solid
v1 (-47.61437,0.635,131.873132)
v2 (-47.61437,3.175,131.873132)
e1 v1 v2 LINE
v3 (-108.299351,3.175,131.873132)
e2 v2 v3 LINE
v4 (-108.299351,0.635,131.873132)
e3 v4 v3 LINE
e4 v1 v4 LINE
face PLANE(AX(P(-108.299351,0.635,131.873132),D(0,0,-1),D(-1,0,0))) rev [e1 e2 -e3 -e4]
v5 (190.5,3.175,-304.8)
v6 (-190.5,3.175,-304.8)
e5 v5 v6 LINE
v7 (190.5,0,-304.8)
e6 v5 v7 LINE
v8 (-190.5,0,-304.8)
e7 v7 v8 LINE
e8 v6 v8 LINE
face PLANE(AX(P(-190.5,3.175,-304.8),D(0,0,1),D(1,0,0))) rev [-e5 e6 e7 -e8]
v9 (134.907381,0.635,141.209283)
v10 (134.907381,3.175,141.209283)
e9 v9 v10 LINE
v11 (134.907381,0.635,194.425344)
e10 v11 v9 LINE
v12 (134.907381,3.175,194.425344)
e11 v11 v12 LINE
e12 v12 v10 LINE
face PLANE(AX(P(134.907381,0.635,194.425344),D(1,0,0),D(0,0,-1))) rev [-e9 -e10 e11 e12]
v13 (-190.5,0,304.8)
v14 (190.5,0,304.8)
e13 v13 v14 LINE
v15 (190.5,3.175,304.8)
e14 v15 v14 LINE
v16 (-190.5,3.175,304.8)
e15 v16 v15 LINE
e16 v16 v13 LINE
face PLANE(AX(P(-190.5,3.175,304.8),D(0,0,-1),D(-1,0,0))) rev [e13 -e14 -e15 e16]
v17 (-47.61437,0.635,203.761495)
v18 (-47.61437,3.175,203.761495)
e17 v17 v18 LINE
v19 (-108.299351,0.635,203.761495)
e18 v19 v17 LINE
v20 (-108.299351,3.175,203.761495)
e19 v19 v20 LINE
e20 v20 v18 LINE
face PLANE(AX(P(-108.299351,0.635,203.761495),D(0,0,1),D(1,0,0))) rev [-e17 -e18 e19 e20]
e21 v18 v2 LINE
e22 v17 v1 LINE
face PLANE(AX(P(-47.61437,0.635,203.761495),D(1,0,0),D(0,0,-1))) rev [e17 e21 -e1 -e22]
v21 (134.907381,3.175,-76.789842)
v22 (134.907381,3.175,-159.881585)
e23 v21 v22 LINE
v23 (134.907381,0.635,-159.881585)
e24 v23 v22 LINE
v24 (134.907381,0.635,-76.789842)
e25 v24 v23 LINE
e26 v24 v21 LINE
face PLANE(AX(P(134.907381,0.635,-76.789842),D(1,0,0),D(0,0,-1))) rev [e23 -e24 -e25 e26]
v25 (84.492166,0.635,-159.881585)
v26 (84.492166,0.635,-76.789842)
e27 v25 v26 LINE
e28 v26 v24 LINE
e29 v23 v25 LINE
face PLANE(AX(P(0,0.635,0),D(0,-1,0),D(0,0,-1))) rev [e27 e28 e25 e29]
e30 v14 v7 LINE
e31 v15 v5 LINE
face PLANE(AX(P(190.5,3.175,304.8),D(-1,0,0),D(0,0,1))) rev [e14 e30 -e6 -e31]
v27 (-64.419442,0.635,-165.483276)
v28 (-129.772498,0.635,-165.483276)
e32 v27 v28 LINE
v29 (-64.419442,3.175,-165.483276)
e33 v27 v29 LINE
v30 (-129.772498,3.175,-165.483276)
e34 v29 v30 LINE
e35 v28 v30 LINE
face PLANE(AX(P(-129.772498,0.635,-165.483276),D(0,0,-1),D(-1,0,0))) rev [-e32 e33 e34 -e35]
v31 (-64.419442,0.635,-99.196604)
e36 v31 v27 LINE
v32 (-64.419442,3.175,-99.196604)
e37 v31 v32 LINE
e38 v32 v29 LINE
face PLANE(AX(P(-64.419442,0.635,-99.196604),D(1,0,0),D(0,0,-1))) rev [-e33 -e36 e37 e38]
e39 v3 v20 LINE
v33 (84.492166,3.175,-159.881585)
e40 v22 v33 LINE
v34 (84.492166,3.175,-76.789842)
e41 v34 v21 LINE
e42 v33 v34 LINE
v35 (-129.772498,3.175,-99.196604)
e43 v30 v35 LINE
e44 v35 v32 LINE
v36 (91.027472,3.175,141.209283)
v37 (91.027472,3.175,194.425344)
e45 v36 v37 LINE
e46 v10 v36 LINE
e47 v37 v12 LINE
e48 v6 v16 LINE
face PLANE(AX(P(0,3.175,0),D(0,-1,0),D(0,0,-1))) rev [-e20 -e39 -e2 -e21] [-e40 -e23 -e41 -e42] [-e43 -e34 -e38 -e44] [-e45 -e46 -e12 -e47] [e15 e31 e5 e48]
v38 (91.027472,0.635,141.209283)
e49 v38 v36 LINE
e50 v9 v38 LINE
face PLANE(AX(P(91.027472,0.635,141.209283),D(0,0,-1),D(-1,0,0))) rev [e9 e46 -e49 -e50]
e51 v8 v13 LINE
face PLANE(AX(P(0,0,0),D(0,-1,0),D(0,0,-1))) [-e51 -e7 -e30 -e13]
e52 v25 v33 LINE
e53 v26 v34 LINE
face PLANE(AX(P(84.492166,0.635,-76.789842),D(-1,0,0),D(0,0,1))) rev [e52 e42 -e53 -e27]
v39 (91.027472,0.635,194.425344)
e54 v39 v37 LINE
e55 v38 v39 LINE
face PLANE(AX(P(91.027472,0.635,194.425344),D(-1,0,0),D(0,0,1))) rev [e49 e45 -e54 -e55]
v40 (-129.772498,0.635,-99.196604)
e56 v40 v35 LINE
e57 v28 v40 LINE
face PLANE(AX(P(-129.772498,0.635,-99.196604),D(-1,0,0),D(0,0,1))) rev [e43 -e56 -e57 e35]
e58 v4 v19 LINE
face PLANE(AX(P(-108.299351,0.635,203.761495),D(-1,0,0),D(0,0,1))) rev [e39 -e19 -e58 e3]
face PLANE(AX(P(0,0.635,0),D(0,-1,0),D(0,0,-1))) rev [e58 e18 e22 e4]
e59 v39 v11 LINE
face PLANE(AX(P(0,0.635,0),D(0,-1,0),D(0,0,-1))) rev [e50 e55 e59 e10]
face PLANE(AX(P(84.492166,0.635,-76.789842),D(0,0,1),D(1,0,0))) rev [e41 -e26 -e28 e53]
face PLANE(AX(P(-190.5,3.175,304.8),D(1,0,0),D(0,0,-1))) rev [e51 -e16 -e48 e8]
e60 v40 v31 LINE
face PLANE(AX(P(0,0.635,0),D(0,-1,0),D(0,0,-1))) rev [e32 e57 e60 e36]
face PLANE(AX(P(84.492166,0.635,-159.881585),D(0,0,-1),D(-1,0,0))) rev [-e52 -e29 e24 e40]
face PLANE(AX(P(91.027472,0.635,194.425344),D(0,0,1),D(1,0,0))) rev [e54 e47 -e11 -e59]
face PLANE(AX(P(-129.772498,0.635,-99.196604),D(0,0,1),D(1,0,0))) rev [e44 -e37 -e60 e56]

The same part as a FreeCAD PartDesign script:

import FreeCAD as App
import Part
import Sketcher

V = App.Vector
Q = App.Units.Quantity

doc = App.newDocument("Part")
body = doc.addObject("PartDesign::Body", "Body")

sketch1 = body.newObject("Sketcher::SketchObject", "Sketch")
sketch1.AttachmentSupport = (doc.getObject("XZ_Plane"), [""])
sketch1.MapMode = "FlatFace"
sketch1.addGeometry([
    Part.LineSegment(V(-190, -305, 0), V(-190, 305, 0)),
    Part.LineSegment(V(-190, 305, 0), V(190, 305, 0)),
    Part.LineSegment(V(190, 305, 0), V(190, -305, 0)),
    Part.LineSegment(V(190, -305, 0), V(-190, -305, 0)),
], False)
sketch1.addConstraint([
    Sketcher.Constraint("Coincident", 0, 2, 1, 1),
    Sketcher.Constraint("Coincident", 1, 2, 2, 1),
    Sketcher.Constraint("Coincident", 2, 2, 3, 1),
    Sketcher.Constraint("Coincident", 3, 2, 0, 1),
    Sketcher.Constraint("Vertical", 0),
    Sketcher.Constraint("Horizontal", 1),
    Sketcher.Constraint("Vertical", 2),
    Sketcher.Constraint("Horizontal", 3),
    Sketcher.Constraint("Symmetric", 0, 2, 2, 2, -1, 1),
    Sketcher.Constraint("DistanceX", 1, 1, 1, 2, Q("15 in")),
    Sketcher.Constraint("DistanceY", 0, 1, 0, 2, Q("24 in")),
])
pad1 = body.newObject("PartDesign::Pad", "Pad")
pad1.Profile = sketch1
pad1.Length = Q("0.125 in")
pad1.Reversed = True

sketch2 = body.newObject("Sketcher::SketchObject", "Sketch001")
sketch2.AttachmentSupport = (doc.getObject("XZ_Plane"), [""])
sketch2.MapMode = "FlatFace"
sketch2.AttachmentOffset = App.Placement(V(0, 0, -0.125 * 25.4), App.Rotation())
sketch2.addGeometry([
    Part.LineSegment(V(-130, -165, 0), V(-130, -99, 0)),
    Part.LineSegment(V(-130, -99, 0), V(-64, -99, 0)),
    Part.LineSegment(V(-64, -99, 0), V(-64, -165, 0)),
    Part.LineSegment(V(-64, -165, 0), V(-130, -165, 0)),
    Part.LineSegment(V(84, -160, 0), V(84, -77, 0)),
    Part.LineSegment(V(84, -77, 0), V(135, -77, 0)),
    Part.LineSegment(V(135, -77, 0), V(135, -160, 0)),
    Part.LineSegment(V(135, -160, 0), V(84, -160, 0)),
    Part.LineSegment(V(-108, 132, 0), V(-108, 204, 0)),
    Part.LineSegment(V(-108, 204, 0), V(-48, 204, 0)),
    Part.LineSegment(V(-48, 204, 0), V(-48, 132, 0)),
    Part.LineSegment(V(-48, 132, 0), V(-108, 132, 0)),
    Part.LineSegment(V(91, 141, 0), V(91, 194, 0)),
    Part.LineSegment(V(91, 194, 0), V(135, 194, 0)),
    Part.LineSegment(V(135, 194, 0), V(135, 141, 0)),
    Part.LineSegment(V(135, 141, 0), V(91, 141, 0)),
], False)
sketch2.addConstraint([
    Sketcher.Constraint("Coincident", 0, 2, 1, 1),
    Sketcher.Constraint("Coincident", 1, 2, 2, 1),
    Sketcher.Constraint("Coincident", 2, 2, 3, 1),
    Sketcher.Constraint("Coincident", 3, 2, 0, 1),
    Sketcher.Constraint("Coincident", 4, 2, 5, 1),
    Sketcher.Constraint("Coincident", 5, 2, 6, 1),
    Sketcher.Constraint("Coincident", 6, 2, 7, 1),
    Sketcher.Constraint("Coincident", 7, 2, 4, 1),
    Sketcher.Constraint("Coincident", 8, 2, 9, 1),
    Sketcher.Constraint("Coincident", 9, 2, 10, 1),
    Sketcher.Constraint("Coincident", 10, 2, 11, 1),
    Sketcher.Constraint("Coincident", 11, 2, 8, 1),
    Sketcher.Constraint("Coincident", 12, 2, 13, 1),
    Sketcher.Constraint("Coincident", 13, 2, 14, 1),
    Sketcher.Constraint("Coincident", 14, 2, 15, 1),
    Sketcher.Constraint("Coincident", 15, 2, 12, 1),
    Sketcher.Constraint("Vertical", 0),
    Sketcher.Constraint("Horizontal", 1),
    Sketcher.Constraint("Vertical", 2),
    Sketcher.Constraint("Horizontal", 3),
    Sketcher.Constraint("Vertical", 4),
    Sketcher.Constraint("Horizontal", 5),
    Sketcher.Constraint("Vertical", 6),
    Sketcher.Constraint("Horizontal", 7),
    Sketcher.Constraint("Vertical", 8),
    Sketcher.Constraint("Horizontal", 9),
    Sketcher.Constraint("Vertical", 10),
    Sketcher.Constraint("Horizontal", 11),
    Sketcher.Constraint("Vertical", 12),
    Sketcher.Constraint("Horizontal", 13),
    Sketcher.Constraint("Vertical", 14),
    Sketcher.Constraint("Horizontal", 15),
    Sketcher.Constraint("Vertical", 6, 2, 13, 2),
    Sketcher.Constraint("DistanceX", 9, 1, 9, 2, 60.684981),
    Sketcher.Constraint("DistanceX", 13, 1, 13, 2, 43.87991),
    Sketcher.Constraint("DistanceY", 0, 1, 0, 2, 66.286672),
    Sketcher.Constraint("DistanceY", 12, 1, 12, 2, 53.216061),
    Sketcher.Constraint("DistanceX", 0, 2, -1, 1, 129.772498),
    Sketcher.Constraint("DistanceY", 0, 2, 8, 2, 302.958099),
    Sketcher.Constraint("DistanceX", 1, 1, 1, 2, 65.353057),
    Sketcher.Constraint("DistanceX", 5, 1, 5, 2, 50.415215),
    Sketcher.Constraint("DistanceY", 4, 1, 4, 2, 83.091744),
    Sketcher.Constraint("DistanceY", 8, 1, 8, 2, 71.888362),
    Sketcher.Constraint("DistanceY", 4, 2, -1, 1, 76.789842),
    Sketcher.Constraint("DistanceX", -1, 1, 5, 2, 134.907381),
    Sketcher.Constraint("DistanceX", 8, 2, -1, 1, 108.299351),
    Sketcher.Constraint("DistanceY", 2, 2, 6, 2, 5.601691),
    Sketcher.Constraint("DistanceY", 12, 2, 9, 2, 9.336151),
])
pocket1 = body.newObject("PartDesign::Pocket", "Pocket")
pocket1.Profile = sketch2
pocket1.Length = Q("0.1 in")
pocket1.Reversed = True

doc.recompute()
